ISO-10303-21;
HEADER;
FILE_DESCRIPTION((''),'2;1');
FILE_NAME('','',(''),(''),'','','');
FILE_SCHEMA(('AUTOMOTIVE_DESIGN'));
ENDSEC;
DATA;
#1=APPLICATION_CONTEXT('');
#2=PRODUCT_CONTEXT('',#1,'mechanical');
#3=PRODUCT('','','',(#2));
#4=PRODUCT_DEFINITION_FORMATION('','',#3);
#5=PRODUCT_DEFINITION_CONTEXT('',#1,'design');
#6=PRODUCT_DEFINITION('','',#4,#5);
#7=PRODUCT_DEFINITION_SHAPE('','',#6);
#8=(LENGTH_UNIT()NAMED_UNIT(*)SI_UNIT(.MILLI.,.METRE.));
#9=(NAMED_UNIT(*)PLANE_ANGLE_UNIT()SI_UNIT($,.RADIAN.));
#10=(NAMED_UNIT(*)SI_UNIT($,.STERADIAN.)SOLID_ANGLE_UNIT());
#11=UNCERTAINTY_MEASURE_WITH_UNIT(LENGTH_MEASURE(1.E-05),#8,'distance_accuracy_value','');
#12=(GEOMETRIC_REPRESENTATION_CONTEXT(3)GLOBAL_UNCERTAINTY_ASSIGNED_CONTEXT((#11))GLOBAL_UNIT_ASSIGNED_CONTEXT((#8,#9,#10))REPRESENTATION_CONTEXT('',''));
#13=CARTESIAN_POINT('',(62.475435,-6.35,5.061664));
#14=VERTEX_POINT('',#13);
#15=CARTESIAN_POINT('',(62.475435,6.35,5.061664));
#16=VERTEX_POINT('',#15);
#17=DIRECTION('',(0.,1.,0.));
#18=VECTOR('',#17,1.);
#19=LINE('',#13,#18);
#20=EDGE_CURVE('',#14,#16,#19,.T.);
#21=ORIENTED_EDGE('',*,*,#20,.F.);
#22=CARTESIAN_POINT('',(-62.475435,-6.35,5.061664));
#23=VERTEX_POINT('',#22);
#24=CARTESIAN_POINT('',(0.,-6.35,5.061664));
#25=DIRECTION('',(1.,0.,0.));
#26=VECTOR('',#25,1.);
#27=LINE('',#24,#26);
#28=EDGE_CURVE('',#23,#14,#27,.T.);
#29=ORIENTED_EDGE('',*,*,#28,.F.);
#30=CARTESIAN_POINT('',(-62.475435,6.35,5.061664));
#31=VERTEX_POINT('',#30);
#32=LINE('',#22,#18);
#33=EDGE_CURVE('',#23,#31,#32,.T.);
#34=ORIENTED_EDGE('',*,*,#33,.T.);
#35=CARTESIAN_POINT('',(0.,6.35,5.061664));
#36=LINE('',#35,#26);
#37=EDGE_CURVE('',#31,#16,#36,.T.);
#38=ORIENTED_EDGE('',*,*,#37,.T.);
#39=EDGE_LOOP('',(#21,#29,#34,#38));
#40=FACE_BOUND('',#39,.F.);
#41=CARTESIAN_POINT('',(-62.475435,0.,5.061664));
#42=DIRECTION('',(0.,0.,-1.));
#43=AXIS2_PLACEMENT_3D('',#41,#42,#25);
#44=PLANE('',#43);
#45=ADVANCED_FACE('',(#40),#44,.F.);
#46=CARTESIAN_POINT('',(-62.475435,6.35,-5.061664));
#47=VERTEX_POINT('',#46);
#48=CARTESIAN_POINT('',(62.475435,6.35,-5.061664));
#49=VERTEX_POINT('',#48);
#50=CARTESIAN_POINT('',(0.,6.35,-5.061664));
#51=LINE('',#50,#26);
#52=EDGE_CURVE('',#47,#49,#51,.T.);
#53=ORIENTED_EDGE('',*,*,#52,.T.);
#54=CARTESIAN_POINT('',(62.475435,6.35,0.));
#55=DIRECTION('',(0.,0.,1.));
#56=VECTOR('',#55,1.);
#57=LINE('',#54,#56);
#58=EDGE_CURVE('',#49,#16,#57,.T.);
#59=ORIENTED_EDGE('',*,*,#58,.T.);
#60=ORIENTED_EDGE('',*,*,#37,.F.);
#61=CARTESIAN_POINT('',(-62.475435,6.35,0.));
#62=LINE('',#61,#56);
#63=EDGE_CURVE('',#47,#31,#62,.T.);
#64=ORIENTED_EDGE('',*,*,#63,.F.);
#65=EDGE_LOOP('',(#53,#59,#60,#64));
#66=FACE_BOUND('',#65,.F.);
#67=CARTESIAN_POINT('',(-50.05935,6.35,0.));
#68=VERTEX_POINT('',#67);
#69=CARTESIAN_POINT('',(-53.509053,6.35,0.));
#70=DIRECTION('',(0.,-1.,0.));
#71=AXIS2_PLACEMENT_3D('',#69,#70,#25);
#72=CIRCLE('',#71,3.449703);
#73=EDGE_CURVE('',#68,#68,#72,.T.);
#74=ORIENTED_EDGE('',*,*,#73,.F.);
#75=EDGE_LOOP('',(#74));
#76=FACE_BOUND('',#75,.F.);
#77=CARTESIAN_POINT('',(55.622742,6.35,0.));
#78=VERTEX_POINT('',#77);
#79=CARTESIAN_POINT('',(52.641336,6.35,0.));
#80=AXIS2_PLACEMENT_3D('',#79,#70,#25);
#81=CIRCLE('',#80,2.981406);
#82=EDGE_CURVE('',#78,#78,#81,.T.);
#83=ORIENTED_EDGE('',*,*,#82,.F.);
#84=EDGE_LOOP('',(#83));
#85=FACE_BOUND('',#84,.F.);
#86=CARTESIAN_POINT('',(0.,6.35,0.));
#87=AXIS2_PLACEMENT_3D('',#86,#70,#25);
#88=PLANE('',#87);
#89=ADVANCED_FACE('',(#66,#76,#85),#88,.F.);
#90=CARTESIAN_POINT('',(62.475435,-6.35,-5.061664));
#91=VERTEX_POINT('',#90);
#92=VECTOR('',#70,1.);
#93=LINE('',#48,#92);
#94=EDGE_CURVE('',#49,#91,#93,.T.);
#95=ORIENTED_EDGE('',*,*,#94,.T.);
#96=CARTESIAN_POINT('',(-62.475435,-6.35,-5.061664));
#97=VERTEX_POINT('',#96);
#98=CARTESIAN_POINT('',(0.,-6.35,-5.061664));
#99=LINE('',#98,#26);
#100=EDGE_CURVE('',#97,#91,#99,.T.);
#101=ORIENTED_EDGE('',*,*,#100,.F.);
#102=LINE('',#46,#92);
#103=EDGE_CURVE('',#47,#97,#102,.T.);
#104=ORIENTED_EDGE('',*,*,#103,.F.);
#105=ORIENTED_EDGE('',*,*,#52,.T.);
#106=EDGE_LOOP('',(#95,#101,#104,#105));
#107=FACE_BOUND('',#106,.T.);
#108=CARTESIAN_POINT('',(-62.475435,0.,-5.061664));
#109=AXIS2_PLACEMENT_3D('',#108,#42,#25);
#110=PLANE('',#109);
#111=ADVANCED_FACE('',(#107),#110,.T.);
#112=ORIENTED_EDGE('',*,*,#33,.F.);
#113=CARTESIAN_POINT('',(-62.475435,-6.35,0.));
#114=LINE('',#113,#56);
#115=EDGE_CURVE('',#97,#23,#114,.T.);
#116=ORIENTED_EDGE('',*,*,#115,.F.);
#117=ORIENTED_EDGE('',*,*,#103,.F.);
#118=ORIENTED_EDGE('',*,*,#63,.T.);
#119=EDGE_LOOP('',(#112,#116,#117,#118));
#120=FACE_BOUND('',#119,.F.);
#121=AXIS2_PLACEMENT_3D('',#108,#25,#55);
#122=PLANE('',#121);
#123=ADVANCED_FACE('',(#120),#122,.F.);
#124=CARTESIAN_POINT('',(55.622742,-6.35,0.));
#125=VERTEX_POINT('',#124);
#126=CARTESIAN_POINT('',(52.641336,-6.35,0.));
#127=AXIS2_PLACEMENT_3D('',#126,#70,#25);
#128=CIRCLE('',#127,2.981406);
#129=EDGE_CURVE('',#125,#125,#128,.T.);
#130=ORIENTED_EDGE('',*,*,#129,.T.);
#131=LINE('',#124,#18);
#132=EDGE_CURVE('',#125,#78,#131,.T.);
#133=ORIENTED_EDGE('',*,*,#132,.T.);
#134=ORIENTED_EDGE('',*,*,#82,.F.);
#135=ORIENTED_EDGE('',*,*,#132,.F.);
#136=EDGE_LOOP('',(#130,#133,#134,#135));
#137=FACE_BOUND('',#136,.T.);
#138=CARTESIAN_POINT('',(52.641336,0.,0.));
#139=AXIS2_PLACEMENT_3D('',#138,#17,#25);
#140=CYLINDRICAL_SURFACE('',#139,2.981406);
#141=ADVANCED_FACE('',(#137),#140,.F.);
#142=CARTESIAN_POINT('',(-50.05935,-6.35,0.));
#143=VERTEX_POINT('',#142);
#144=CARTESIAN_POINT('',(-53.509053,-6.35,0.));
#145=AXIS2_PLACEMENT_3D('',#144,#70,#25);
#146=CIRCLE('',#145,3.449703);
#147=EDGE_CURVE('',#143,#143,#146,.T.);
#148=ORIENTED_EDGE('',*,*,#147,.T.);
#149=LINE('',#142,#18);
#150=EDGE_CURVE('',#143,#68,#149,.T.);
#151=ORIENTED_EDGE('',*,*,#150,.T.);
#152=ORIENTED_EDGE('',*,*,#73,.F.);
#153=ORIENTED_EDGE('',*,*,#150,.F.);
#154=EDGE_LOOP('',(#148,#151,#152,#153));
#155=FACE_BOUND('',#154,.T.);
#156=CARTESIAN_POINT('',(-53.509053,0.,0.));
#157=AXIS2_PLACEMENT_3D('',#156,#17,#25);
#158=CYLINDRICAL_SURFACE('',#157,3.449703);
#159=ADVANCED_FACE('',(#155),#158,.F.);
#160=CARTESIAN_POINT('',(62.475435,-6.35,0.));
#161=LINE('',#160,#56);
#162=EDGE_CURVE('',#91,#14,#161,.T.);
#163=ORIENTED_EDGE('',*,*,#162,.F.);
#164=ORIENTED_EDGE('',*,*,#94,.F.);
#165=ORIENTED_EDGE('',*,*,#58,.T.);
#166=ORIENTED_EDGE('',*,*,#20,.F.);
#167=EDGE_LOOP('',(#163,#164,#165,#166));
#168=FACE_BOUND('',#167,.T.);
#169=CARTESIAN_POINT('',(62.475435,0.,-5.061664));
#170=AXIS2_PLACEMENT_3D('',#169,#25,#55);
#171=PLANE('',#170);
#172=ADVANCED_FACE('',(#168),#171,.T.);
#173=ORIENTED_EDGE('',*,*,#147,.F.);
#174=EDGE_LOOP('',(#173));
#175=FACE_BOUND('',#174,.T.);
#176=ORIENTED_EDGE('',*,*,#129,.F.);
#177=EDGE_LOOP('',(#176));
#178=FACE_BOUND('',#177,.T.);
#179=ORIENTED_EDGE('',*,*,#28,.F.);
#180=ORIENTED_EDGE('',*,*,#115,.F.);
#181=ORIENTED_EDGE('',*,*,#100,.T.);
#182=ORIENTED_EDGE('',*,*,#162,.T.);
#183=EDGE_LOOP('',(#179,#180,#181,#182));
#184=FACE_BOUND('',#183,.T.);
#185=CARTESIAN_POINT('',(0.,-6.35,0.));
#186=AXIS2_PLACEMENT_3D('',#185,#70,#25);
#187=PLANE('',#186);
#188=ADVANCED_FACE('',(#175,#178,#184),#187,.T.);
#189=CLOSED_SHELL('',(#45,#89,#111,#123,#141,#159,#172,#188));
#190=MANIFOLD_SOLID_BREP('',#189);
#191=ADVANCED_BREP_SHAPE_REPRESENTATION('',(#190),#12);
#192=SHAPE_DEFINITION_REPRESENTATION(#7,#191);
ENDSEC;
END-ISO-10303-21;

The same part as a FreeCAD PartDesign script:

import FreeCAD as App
import Part
import Sketcher
Q = App.Units.Quantity


def add_polygon(sketch, points):
    """Adds a closed chain of lines whose ends are joined by coincident constraints."""
    first, n = sketch.GeometryCount, len(points)
    for a, b in zip(points, points[1:] + points[:1]):
        sketch.addGeometry(Part.LineSegment(App.Vector(*a, 0), App.Vector(*b, 0)), False)
    for i in range(n):
        sketch.addConstraint(Sketcher.Constraint("Coincident", first + i, 2, first + (i + 1) % n, 1))

doc = App.newDocument("Part")
body = doc.addObject("PartDesign::Body", "Body")

# Sketch on XZ plane
sketch1 = doc.addObject("Sketcher::SketchObject", "Sketch")
body.addObject(sketch1)
sketch1.AttachmentSupport = (doc.XZ_Plane, [""])
sketch1.MapMode = "FlatFace"
add_polygon(sketch1, [(-62.5, 5.1), (-62.5, -5.1), (62.5, -5.1), (62.5, 5.1)])  # lines 0-3
sketch1.addGeometry(Part.Circle(App.Vector(-53.5, 0, 0), App.Vector(0, 0, 1), 3.4), False)  # 4
sketch1.addGeometry(Part.Circle(App.Vector(52.6, 0, 0), App.Vector(0, 0, 1), 3), False)  # 5
sketch1.addConstraint(Sketcher.Constraint("Vertical", 0))
sketch1.addConstraint(Sketcher.Constraint("Horizontal", 1))
sketch1.addConstraint(Sketcher.Constraint("Vertical", 2))
sketch1.addConstraint(Sketcher.Constraint("Horizontal", 3))
sketch1.addConstraint(Sketcher.Constraint("Symmetric", 0, 2, 2, 2, -1, 1))
sketch1.addConstraint(Sketcher.Constraint("PointOnObject", 4, 3, -1))
sketch1.addConstraint(Sketcher.Constraint("PointOnObject", 5, 3, -1))
sketch1.addConstraint(Sketcher.Constraint("Diameter", 5, Q("5.962812 mm")))
sketch1.addConstraint(Sketcher.Constraint("Diameter", 4, Q("6.899406 mm")))
sketch1.addConstraint(Sketcher.Constraint("DistanceX", 1, 1, 1, 2, Q("124.95087 mm")))
sketch1.addConstraint(Sketcher.Constraint("DistanceY", 0, 2, 0, 1, Q("10.123328 mm")))
sketch1.addConstraint(Sketcher.Constraint("DistanceX", 5, 3, 1, 2, Q("9.834099 mm")))
sketch1.addConstraint(Sketcher.Constraint("DistanceX", 4, 3, 5, 3, Q("106.150389 mm")))
pad1 = doc.addObject("PartDesign::Pad", "Pad")
body.addObject(pad1)
pad1.Profile = sketch1
pad1.Length = Q("0.5 in")
pad1.Midplane = True

doc.recompute()
